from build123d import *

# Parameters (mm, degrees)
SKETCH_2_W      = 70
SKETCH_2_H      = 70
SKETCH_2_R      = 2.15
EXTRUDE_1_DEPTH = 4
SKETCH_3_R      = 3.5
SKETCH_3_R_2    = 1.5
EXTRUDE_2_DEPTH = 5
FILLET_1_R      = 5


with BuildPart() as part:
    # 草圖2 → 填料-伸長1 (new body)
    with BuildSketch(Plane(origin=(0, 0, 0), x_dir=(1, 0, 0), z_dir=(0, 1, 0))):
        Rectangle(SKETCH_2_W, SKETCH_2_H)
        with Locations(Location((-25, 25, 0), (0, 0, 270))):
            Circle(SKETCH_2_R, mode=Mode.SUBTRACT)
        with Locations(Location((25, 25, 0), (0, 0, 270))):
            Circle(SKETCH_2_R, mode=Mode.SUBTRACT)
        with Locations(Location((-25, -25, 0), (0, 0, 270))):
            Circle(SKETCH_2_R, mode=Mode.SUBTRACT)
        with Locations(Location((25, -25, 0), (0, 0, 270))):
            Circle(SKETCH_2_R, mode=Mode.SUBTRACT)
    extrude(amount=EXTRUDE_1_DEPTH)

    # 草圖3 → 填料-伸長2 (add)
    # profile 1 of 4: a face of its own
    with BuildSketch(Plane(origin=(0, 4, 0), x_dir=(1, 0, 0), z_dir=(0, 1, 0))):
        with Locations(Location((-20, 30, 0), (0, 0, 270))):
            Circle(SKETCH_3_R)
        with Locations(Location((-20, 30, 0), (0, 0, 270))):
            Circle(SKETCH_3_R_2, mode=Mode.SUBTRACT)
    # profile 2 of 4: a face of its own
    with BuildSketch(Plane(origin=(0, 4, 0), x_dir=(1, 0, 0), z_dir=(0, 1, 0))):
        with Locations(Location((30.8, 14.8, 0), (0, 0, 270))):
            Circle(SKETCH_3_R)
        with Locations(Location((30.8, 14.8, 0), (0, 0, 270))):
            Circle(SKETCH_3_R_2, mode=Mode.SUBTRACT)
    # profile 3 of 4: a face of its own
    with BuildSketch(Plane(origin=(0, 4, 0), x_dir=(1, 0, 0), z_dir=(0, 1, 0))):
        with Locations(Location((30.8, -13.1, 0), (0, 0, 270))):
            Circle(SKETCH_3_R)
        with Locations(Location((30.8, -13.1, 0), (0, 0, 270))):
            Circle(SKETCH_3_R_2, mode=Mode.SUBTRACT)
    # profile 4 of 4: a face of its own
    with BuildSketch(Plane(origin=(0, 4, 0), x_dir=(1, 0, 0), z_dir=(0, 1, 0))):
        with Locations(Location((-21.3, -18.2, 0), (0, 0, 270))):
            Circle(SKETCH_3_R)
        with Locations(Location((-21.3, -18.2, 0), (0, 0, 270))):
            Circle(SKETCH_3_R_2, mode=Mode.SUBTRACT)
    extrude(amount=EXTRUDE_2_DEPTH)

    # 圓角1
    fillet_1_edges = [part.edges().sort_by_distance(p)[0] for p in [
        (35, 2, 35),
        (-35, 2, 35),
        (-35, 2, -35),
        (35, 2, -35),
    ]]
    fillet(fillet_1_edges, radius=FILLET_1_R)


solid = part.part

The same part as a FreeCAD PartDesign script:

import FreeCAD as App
import Part
import Sketcher
from FreeCAD import Vector
Q = App.Units.Quantity


def edges_at(feature, points):
    """Names of the edges that pass closest to the given points."""
    edges = feature.Shape.Edges
    near = lambda p: min(range(len(edges)), key=lambda i: edges[i].distToShape(Part.Vertex(*p))[0])
    return sorted({f"Edge{near(p) + 1}" for p in points})


def add_polygon(sketch, points):
    """Adds a closed chain of lines whose ends are joined by coincident constraints."""
    first, n = sketch.GeometryCount, len(points)
    for a, b in zip(points, points[1:] + points[:1]):
        sketch.addGeometry(Part.LineSegment(App.Vector(*a, 0), App.Vector(*b, 0)), False)
    for i in range(n):
        sketch.addConstraint(Sketcher.Constraint("Coincident", first + i, 2, first + (i + 1) % n, 1))

doc = App.newDocument("Part")
params = doc.addObject("Spreadsheet::Sheet", "Params")
for row, (alias, value) in enumerate([
    ("sketch1_diameter", "4.3 mm"),
    ("sketch1_width", "70 mm"),
    ("pad1_length", "4 mm"),
    ("sketch2_diameter", "7 mm"),
    ("sketch2_diameter2", "3 mm"),
    ("pad2_length", "5 mm"),
    ("fillet_radius", "5 mm"),
], start=1):
    params.set(f"A{row}", alias)
    params.set(f"B{row}", "=" + value)
    params.setAlias(f"B{row}", alias)

body = doc.addObject("PartDesign::Body", "Body")

# Sketch on XZ plane
sketch1 = body.newObject("Sketcher::SketchObject", "Sketch")
sketch1.AttachmentSupport = (doc.getObject("XZ_Plane"), [""])
sketch1.MapMode = "FlatFace"
add_polygon(sketch1, [(-35, -35), (-35, 35), (35, 35), (35, -35)])  # lines 0-3
sketch1.addGeometry(Part.Circle(Vector(-25, 25, 0), Vector(0, 0, 1), 2.1), False)  # 4
sketch1.addGeometry(Part.Circle(Vector(25, 25, 0), Vector(0, 0, 1), 2.1), False)  # 5
sketch1.addGeometry(Part.Circle(Vector(-25, -25, 0), Vector(0, 0, 1), 2.1), False)  # 6
sketch1.addGeometry(Part.Circle(Vector(25, -25, 0), Vector(0, 0, 1), 2.1), False)  # 7
sketch1.addConstraint(Sketcher.Constraint("Vertical", 0))
sketch1.addConstraint(Sketcher.Constraint("Horizontal", 1))
sketch1.addConstraint(Sketcher.Constraint("Vertical", 2))
sketch1.addConstraint(Sketcher.Constraint("Horizontal", 3))
sketch1.addConstraint(Sketcher.Constraint("Equal", 4, 5))
sketch1.addConstraint(Sketcher.Constraint("Equal", 5, 6))
sketch1.addConstraint(Sketcher.Constraint("Equal", 6, 7))
sketch1.addConstraint(Sketcher.Constraint("Symmetric", 5, 3, 6, 3, -1, 1))
sketch1.addConstraint(Sketcher.Constraint("Symmetric", 4, 3, 7, 3, -1, 1))
sketch1.addConstraint(Sketcher.Constraint("Symmetric", 0, 2, 2, 2, -1, 1))
sketch1.addConstraint(Sketcher.Constraint("Symmetric", 4, 3, 5, 3, -2))
sketch1.addConstraint(Sketcher.Constraint("Equal", 3, 0))
sketch1.addConstraint(Sketcher.Constraint("Diameter", 4, Q("4.3 mm")))
sketch1.addConstraint(Sketcher.Constraint("DistanceX", 1, 1, 1, 2, Q("70 mm")))
sketch1.addConstraint(Sketcher.Constraint("DistanceX", 4, 3, -1, 1, Q("25 mm")))
sketch1.addConstraint(Sketcher.Constraint("DistanceY", -1, 1, 4, 3, Q("25 mm")))
sketch1.setExpression("Constraints[16]", "Params.sketch1_diameter")
sketch1.setExpression("Constraints[17]", "Params.sketch1_width")
pad1 = body.newObject("PartDesign::Pad", "Pad")
pad1.Profile = sketch1
pad1.setExpression("Length", "Params.pad1_length")
pad1.Reversed = True

# Sketch on XZ plane
sketch2 = body.newObject("Sketcher::SketchObject", "Sketch001")
sketch2.AttachmentSupport = (doc.getObject("XZ_Plane"), [""])
sketch2.MapMode = "FlatFace"
sketch2.AttachmentOffset = App.Placement(Vector(0, 0, -4), App.Rotation())
sketch2.addGeometry(Part.Circle(Vector(-20, -30, 0), Vector(0, 0, 1), 3.5), False)
sketch2.addGeometry(Part.Circle(Vector(-20, -30, 0), Vector(0, 0, 1), 1.5), False)
sketch2.addGeometry(Part.Circle(Vector(30.8, -14.8, 0), Vector(0, 0, 1), 3.5), False)
sketch2.addGeometry(Part.Circle(Vector(30.8, -14.8, 0), Vector(0, 0, 1), 1.5), False)
sketch2.addGeometry(Part.Circle(Vector(30.8, 13.1, 0), Vector(0, 0, 1), 3.5), False)
sketch2.addGeometry(Part.Circle(Vector(30.8, 13.1, 0), Vector(0, 0, 1), 1.5), False)
sketch2.addGeometry(Part.Circle(Vector(-21.3, 18.2, 0), Vector(0, 0, 1), 3.5), False)
sketch2.addGeometry(Part.Circle(Vector(-21.3, 18.2, 0), Vector(0, 0, 1), 1.5), False)
sketch2.addConstraint(Sketcher.Constraint("Coincident", 1, 3, 0, 3))
sketch2.addConstraint(Sketcher.Constraint("Coincident", 3, 3, 2, 3))
sketch2.addConstraint(Sketcher.Constraint("Coincident", 5, 3, 4, 3))
sketch2.addConstraint(Sketcher.Constraint("Coincident", 7, 3, 6, 3))
sketch2.addConstraint(Sketcher.Constraint("Equal", 0, 2))
sketch2.addConstraint(Sketcher.Constraint("Equal", 1, 3))
sketch2.addConstraint(Sketcher.Constraint("Equal", 2, 4))
sketch2.addConstraint(Sketcher.Constraint("Equal", 3, 5))
sketch2.addConstraint(Sketcher.Constraint("Equal", 4, 6))
sketch2.addConstraint(Sketcher.Constraint("Equal", 5, 7))
sketch2.addConstraint(Sketcher.Constraint("Vertical", 3, 3, 4, 3))
sketch2.addConstraint(Sketcher.Constraint("Diameter", 0, Q("7 mm")))
sketch2.addConstraint(Sketcher.Constraint("Diameter", 1, Q("3 mm")))
sketch2.addConstraint(Sketcher.Constraint("DistanceX", 0, 3, -1, 1, Q("20 mm")))
sketch2.addConstraint(Sketcher.Constraint("DistanceY", 0, 3, -1, 1, Q("30 mm")))
sketch2.addConstraint(Sketcher.Constraint("DistanceY", 2, 3, 6, 3, Q("33 mm")))
sketch2.addConstraint(Sketcher.Constraint("DistanceX", -1, 1, 2, 3, Q("30.8 mm")))
sketch2.addConstraint(Sketcher.Constraint("DistanceY", 2, 3, -1, 1, Q("14.8 mm")))
sketch2.addConstraint(Sketcher.Constraint("DistanceY", -1, 1, 4, 3, Q("13.1 mm")))
sketch2.addConstraint(Sketcher.Constraint("DistanceX", 6, 3, -1, 1, Q("21.3 mm")))
sketch2.setExpression("Constraints[11]", "Params.sketch2_diameter")
sketch2.setExpression("Constraints[12]", "Params.sketch2_diameter2")
pad2 = body.newObject("PartDesign::Pad", "Pad001")
pad2.Profile = sketch2
pad2.setExpression("Length", "Params.pad2_length")
pad2.Reversed = True
doc.recompute()

fillet = body.newObject("PartDesign::Fillet", "Fillet")
fillet.Base = (pad2, edges_at(pad2, [
    (35, 2, 35),
    (-35, 2, 35),
    (-35, 2, -35),
    (35, 2, -35),
]))
fillet.setExpression("Radius", "Params.fillet_radius")

doc.recompute()
